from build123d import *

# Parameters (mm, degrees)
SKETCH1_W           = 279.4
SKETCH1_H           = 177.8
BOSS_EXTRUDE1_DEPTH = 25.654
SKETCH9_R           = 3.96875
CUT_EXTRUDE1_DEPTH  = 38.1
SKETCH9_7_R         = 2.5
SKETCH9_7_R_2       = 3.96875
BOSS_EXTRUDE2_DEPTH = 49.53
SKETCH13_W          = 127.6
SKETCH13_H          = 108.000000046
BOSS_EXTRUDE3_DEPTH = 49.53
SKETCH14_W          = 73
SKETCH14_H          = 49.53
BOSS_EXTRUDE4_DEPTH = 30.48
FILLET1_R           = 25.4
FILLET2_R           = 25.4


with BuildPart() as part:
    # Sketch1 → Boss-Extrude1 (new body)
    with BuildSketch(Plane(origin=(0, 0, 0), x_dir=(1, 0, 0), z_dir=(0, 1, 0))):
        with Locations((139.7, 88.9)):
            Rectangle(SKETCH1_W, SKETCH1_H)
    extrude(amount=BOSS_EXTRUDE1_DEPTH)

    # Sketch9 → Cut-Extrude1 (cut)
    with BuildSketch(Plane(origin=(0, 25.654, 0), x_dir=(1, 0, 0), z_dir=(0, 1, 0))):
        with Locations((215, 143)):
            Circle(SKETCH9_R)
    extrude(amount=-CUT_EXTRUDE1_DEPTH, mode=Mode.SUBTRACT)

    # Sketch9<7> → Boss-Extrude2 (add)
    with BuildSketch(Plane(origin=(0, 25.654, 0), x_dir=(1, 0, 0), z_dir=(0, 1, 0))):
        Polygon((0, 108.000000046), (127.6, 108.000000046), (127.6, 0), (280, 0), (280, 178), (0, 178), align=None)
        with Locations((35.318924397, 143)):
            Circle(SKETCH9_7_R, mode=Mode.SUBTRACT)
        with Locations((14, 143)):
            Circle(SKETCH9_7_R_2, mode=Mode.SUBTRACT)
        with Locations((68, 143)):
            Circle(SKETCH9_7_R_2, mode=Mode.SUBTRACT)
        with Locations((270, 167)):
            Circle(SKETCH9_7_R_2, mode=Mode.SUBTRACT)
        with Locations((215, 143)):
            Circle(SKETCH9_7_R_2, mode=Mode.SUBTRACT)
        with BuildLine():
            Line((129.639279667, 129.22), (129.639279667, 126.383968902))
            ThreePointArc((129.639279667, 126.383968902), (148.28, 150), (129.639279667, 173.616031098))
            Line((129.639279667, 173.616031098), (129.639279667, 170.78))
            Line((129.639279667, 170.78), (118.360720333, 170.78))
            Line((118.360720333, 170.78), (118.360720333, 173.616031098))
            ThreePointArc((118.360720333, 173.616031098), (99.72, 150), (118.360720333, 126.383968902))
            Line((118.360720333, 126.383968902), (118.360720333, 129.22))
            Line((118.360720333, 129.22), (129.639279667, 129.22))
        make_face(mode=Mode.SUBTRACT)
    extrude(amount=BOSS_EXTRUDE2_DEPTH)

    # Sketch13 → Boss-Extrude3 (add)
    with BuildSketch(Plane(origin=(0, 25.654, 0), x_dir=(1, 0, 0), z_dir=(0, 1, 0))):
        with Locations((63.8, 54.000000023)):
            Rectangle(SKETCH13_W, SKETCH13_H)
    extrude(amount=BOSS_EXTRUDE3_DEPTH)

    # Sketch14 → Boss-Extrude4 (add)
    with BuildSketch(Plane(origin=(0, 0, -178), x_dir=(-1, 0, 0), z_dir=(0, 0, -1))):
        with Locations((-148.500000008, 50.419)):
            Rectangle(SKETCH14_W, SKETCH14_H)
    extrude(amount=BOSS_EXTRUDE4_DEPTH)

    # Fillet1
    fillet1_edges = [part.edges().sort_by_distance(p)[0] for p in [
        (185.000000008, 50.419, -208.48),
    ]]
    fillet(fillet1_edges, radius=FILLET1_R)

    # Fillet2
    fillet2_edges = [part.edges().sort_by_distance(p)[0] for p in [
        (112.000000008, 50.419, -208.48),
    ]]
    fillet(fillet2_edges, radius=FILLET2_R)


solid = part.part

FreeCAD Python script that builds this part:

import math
import FreeCAD as App
import Part
import Sketcher

V = App.Vector
Q = App.Units.Quantity


def edges_at(feature, points):
    """Names of the edges that pass closest to the given points."""
    edges = feature.Shape.Edges
    near = lambda p: min(range(len(edges)), key=lambda i: edges[i].distToShape(Part.Vertex(*p))[0])
    return sorted({f"Edge{near(p) + 1}" for p in points})

doc = App.newDocument("Part")
body = doc.addObject("PartDesign::Body", "Body")

sketch1 = body.newObject("Sketcher::SketchObject", "Sketch")
sketch1.AttachmentSupport = (doc.getObject("XZ_Plane"), [""])
sketch1.MapMode = "FlatFace"
sketch1.addGeometry([
    Part.LineSegment(V(0, -178, 0), V(0, 0, 0)),
    Part.LineSegment(V(0, 0, 0), V(279, 0, 0)),
    Part.LineSegment(V(279, 0, 0), V(279, -178, 0)),
    Part.LineSegment(V(279, -178, 0), V(0, -178, 0)),
], False)
sketch1.addConstraint([
    Sketcher.Constraint("Coincident", 0, 2, 1, 1),
    Sketcher.Constraint("Coincident", 1, 2, 2, 1),
    Sketcher.Constraint("Coincident", 2, 2, 3, 1),
    Sketcher.Constraint("Coincident", 3, 2, 0, 1),
    Sketcher.Constraint("Vertical", 0),
    Sketcher.Constraint("Horizontal", 1),
    Sketcher.Constraint("Vertical", 2),
    Sketcher.Constraint("Horizontal", 3),
    Sketcher.Constraint("Coincident", 0, 2, -1, 1),
    Sketcher.Constraint("DistanceX", 1, 1, 1, 2, Q("11 in")),
    Sketcher.Constraint("DistanceY", 0, 1, 0, 2, Q("7 in")),
])
pad1 = body.newObject("PartDesign::Pad", "Pad")
pad1.Profile = sketch1
pad1.Length = Q("1.01 in")
pad1.Reversed = True

sketch2 = body.newObject("Sketcher::SketchObject", "Sketch001")
sketch2.AttachmentSupport = (doc.getObject("XZ_Plane"), [""])
sketch2.MapMode = "FlatFace"
sketch2.AttachmentOffset = App.Placement(V(0, 0, -1.01 * 25.4), App.Rotation())
sketch2.addGeometry(Part.Circle(V(215, -143, 0), V(0, 0, 1), 4), False)
sketch2.addConstraint([
    Sketcher.Constraint("Diameter", 0, Q("0.3125 in")),
    Sketcher.Constraint("DistanceX", -1, 1, 0, 3, 215.0),
    Sketcher.Constraint("DistanceY", 0, 3, -1, 1, 143.0),
])
pocket1 = body.newObject("PartDesign::Pocket", "Pocket")
pocket1.Profile = sketch2
pocket1.Length = Q("1.5 in")
pocket1.Reversed = True

sketch3 = body.newObject("Sketcher::SketchObject", "Sketch002")
sketch3.AttachmentSupport = (doc.getObject("XZ_Plane"), [""])
sketch3.MapMode = "FlatFace"
sketch3.AttachmentOffset = App.Placement(V(0, 0, -1.01 * 25.4), App.Rotation())
sketch3.addGeometry([
    Part.LineSegment(V(0, -108, 0), V(127.6, -108, 0)),
    Part.LineSegment(V(127.6, -108, 0), V(127.6, 0, 0)),
    Part.LineSegment(V(127.6, 0, 0), V(280, 0, 0)),
    Part.LineSegment(V(280, 0, 0), V(280, -178, 0)),
    Part.LineSegment(V(280, -178, 0), V(0, -178, 0)),
    Part.LineSegment(V(0, -178, 0), V(0, -108, 0)),
    Part.Circle(V(14, -143, 0), V(0, 0, 1), 4),
    Part.Circle(V(35.3, -143, 0), V(0, 0, 1), 2.5),
    Part.Circle(V(68, -143, 0), V(0, 0, 1), 4),
    Part.Circle(V(215, -143, 0), V(0, 0, 1), 4),
    Part.LineSegment(V(129.6, -126.4, 0), V(129.6, -129.2, 0)),
    Part.LineSegment(V(129.6, -129.2, 0), V(118.4, -129.2, 0)),
    Part.LineSegment(V(118.4, -129.2, 0), V(118.4, -126.4, 0)),
    Part.ArcOfCircle(Part.Circle(V(124, -150, 0), V(0, 0, 1), 24.3), math.radians(103), math.radians(257)),
    Part.LineSegment(V(118.4, -173.6, 0), V(118.4, -170.8, 0)),
    Part.LineSegment(V(118.4, -170.8, 0), V(129.6, -170.8, 0)),
    Part.LineSegment(V(129.6, -170.8, 0), V(129.6, -173.6, 0)),
    Part.ArcOfCircle(Part.Circle(V(124, -150, 0), V(0, 0, 1), 24.3), math.radians(-77), math.radians(77)),
    Part.Circle(V(270, -167, 0), V(0, 0, 1), 4),
], False)
sketch3.addConstraint([
    Sketcher.Constraint("Coincident", 0, 2, 1, 1),
    Sketcher.Constraint("Coincident", 1, 2, 2, 1),
    Sketcher.Constraint("Coincident", 2, 2, 3, 1),
    Sketcher.Constraint("Coincident", 3, 2, 4, 1),
    Sketcher.Constraint("Coincident", 4, 2, 5, 1),
    Sketcher.Constraint("Coincident", 5, 2, 0, 1),
    Sketcher.Constraint("Coincident", 10, 2, 11, 1),
    Sketcher.Constraint("Coincident", 11, 2, 12, 1),
    Sketcher.Constraint("Coincident", 12, 2, 13, 1),
    Sketcher.Constraint("Coincident", 13, 2, 14, 1),
    Sketcher.Constraint("Coincident", 14, 2, 15, 1),
    Sketcher.Constraint("Coincident", 15, 2, 16, 1),
    Sketcher.Constraint("Coincident", 16, 2, 17, 1),
    Sketcher.Constraint("Coincident", 17, 2, 10, 1),
    Sketcher.Constraint("Horizontal", 0),
    Sketcher.Constraint("Vertical", 1),
    Sketcher.Constraint("Horizontal", 2),
    Sketcher.Constraint("Vertical", 3),
    Sketcher.Constraint("Horizontal", 4),
    Sketcher.Constraint("Vertical", 5),
    Sketcher.Constraint("Vertical", 10),
    Sketcher.Constraint("Horizontal", 11),
    Sketcher.Constraint("Vertical", 12),
    Sketcher.Constraint("Vertical", 14),
    Sketcher.Constraint("Horizontal", 15),
    Sketcher.Constraint("Vertical", 16),
    Sketcher.Constraint("Coincident", 17, 3, 13, 3),
    Sketcher.Constraint("Equal", 6, 8),
    Sketcher.Constraint("Equal", 8, 9),
    Sketcher.Constraint("Equal", 13, 17),
    Sketcher.Constraint("Equal", 9, 18),
    Sketcher.Constraint("PointOnObject", 1, 2, -1),
    Sketcher.Constraint("PointOnObject", 4, 2, -2),
    Sketcher.Constraint("Horizontal", 6, 3, 7, 3),
    Sketcher.Constraint("Horizontal", 7, 3, 8, 3),
    Sketcher.Constraint("Horizontal", 8, 3, 9, 3),
    Sketcher.Constraint("Horizontal", 13, 2, 16, 2),
    Sketcher.Constraint("Horizontal", 12, 2, 17, 2),
    Sketcher.Constraint("Vertical", 12, 2, 13, 2),
    Sketcher.Constraint("Equal", 12, 14),
    Sketcher.Constraint("DistanceX", 2, 1, 2, 2, Q("6 in")),
    Sketcher.Constraint("Diameter", 6, Q("0.3125 in")),
    Sketcher.Constraint("Diameter", 7, 5.0),
    Sketcher.Constraint("Radius", 13, 24.28),
    Sketcher.Constraint("DistanceX", 0, 1, 0, 2, 127.6),
    Sketcher.Constraint("DistanceY", 1, 1, 1, 2, 108.0),
    Sketcher.Constraint("DistanceY", 3, 2, 3, 1, 178.0),
    Sketcher.Constraint("DistanceX", 11, 2, 11, 1, 11.278559),
    Sketcher.Constraint("DistanceY", 10, 2, 10, 1, 2.836031),
    Sketcher.Constraint("DistanceX", -1, 1, 6, 3, 14.0),
    Sketcher.Constraint("DistanceY", 6, 3, -1, 1, 143.0),
    Sketcher.Constraint("DistanceX", -1, 1, 8, 3, 68.0),
    Sketcher.Constraint("DistanceX", -1, 1, 9, 3, 215.0),
    Sketcher.Constraint("DistanceX", -1, 1, 13, 3, 124.0),
    Sketcher.Constraint("DistanceY", 13, 3, -1, 1, 150.0),
    Sketcher.Constraint("DistanceX", -1, 1, 18, 3, 270.0),
    Sketcher.Constraint("DistanceY", 18, 3, -1, 1, 167.0),
    Sketcher.Constraint("DistanceX", -1, 1, 7, 3, 35.318924),
])
pad2 = body.newObject("PartDesign::Pad", "Pad001")
pad2.Profile = sketch3
pad2.Length = Q("1.95 in")
pad2.Reversed = True

sketch4 = body.newObject("Sketcher::SketchObject", "Sketch003")
sketch4.AttachmentSupport = (doc.getObject("XZ_Plane"), [""])
sketch4.MapMode = "FlatFace"
sketch4.AttachmentOffset = App.Placement(V(0, 0, -1.01 * 25.4), App.Rotation())
sketch4.addGeometry([
    Part.LineSegment(V(0, -108, 0), V(0, 0, 0)),
    Part.LineSegment(V(0, 0, 0), V(128, 0, 0)),
    Part.LineSegment(V(128, 0, 0), V(128, -108, 0)),
    Part.LineSegment(V(128, -108, 0), V(0, -108, 0)),
], False)
sketch4.addConstraint([
    Sketcher.Constraint("Coincident", 0, 2, 1, 1),
    Sketcher.Constraint("Coincident", 1, 2, 2, 1),
    Sketcher.Constraint("Coincident", 2, 2, 3, 1),
    Sketcher.Constraint("Coincident", 3, 2, 0, 1),
    Sketcher.Constraint("Vertical", 0),
    Sketcher.Constraint("Horizontal", 1),
    Sketcher.Constraint("Vertical", 2),
    Sketcher.Constraint("Horizontal", 3),
    Sketcher.Constraint("Coincident", 0, 2, -1, 1),
    Sketcher.Constraint("DistanceX", 1, 1, 1, 2, 127.6),
    Sketcher.Constraint("DistanceY", 0, 1, 0, 2, 108.0),
])
pad3 = body.newObject("PartDesign::Pad", "Pad002")
pad3.Profile = sketch4
pad3.Length = Q("1.95 in")
pad3.Reversed = True

sketch5 = body.newObject("Sketcher::SketchObject", "Sketch004")
sketch5.AttachmentSupport = (doc.getObject("XY_Plane"), [""])
sketch5.MapMode = "FlatFace"
sketch5.AttachmentOffset = App.Placement(V(0, 0, -178), App.Rotation())
sketch5.addGeometry([
    Part.LineSegment(V(185, 75, 0), V(185, 26, 0)),
    Part.LineSegment(V(185, 26, 0), V(112, 26, 0)),
    Part.LineSegment(V(112, 26, 0), V(112, 75, 0)),
    Part.LineSegment(V(112, 75, 0), V(185, 75, 0)),
], False)
sketch5.addConstraint([
    Sketcher.Constraint("Coincident", 0, 2, 1, 1),
    Sketcher.Constraint("Coincident", 1, 2, 2, 1),
    Sketcher.Constraint("Coincident", 2, 2, 3, 1),
    Sketcher.Constraint("Coincident", 3, 2, 0, 1),
    Sketcher.Constraint("Vertical", 0),
    Sketcher.Constraint("Horizontal", 1),
    Sketcher.Constraint("Vertical", 2),
    Sketcher.Constraint("Horizontal", 3),
    Sketcher.Constraint("DistanceY", 0, 2, 0, 1, Q("1.95 in")),
    Sketcher.Constraint("DistanceY", -1, 1, 0, 2, Q("1.01 in")),
    Sketcher.Constraint("DistanceX", 1, 2, 1, 1, 73.0),
    Sketcher.Constraint("DistanceX", -1, 1, 0, 2, 185.0),
])
pad4 = body.newObject("PartDesign::Pad", "Pad003")
pad4.Profile = sketch5
pad4.Length = Q("1.2 in")
pad4.Reversed = True
doc.recompute()

fillet = body.newObject("PartDesign::Fillet", "Fillet")
fillet.Base = (pad4, edges_at(pad4, [(185, 50.419, -208.48)]))
fillet.Radius = Q("1 in")
doc.recompute()

fillet2 = body.newObject("PartDesign::Fillet", "Fillet001")
fillet2.Base = (fillet, edges_at(fillet, [(112, 50.419, -208.48)]))
fillet2.Radius = Q("1 in")

doc.recompute()
